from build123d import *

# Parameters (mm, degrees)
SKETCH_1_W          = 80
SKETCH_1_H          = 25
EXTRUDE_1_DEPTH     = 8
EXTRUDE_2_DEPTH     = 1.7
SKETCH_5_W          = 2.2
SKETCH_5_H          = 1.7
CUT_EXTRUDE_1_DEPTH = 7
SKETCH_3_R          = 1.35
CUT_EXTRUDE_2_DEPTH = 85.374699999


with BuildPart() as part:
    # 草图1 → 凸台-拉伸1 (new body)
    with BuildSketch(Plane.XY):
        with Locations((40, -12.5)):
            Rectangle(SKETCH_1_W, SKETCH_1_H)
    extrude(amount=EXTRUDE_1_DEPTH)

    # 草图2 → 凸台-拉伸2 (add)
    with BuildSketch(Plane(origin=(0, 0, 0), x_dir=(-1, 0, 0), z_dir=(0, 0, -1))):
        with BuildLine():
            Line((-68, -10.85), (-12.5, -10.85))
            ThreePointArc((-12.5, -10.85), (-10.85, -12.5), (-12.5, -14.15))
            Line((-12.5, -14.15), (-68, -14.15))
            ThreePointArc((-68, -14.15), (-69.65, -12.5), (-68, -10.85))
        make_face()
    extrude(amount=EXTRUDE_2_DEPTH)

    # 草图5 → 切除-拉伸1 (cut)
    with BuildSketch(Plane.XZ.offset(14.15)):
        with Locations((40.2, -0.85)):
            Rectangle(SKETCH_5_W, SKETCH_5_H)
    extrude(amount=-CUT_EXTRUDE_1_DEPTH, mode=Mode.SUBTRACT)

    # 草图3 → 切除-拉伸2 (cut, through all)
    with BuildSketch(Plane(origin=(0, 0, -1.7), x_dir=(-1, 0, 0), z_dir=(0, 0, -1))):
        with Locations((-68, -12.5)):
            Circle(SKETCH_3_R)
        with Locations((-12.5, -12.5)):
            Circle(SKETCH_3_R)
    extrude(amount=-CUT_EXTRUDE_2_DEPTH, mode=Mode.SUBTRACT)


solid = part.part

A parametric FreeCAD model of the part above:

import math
import FreeCAD as App
import Part
import Sketcher
from FreeCAD import Vector

doc = App.newDocument("Part")
params = doc.addObject("Spreadsheet::Sheet", "Params")
for row, (alias, value) in enumerate([
    ("sketch1_width", "80 mm"),
    ("sketch1_height", "25 mm"),
    ("pad1_length", "8 mm"),
    ("sketch2_radius", "1.65 mm"),
    ("sketch2_width", "55.5 mm"),
    ("pad2_length", "1.7 mm"),
    ("sketch3_width", "2.2 mm"),
    ("sketch3_height", "1.7 mm"),
    ("pocket1_length", "7 mm"),
    ("sketch4_diameter", "2.7 mm"),
], start=1):
    params.set(f"A{row}", alias)
    params.set(f"B{row}", "=" + value)
    params.setAlias(f"B{row}", alias)

body = doc.addObject("PartDesign::Body", "Body")

# Sketch on XY plane
sketch1 = body.newObject("Sketcher::SketchObject", "Sketch")
sketch1.AttachmentSupport = (doc.getObject("XY_Plane"), [""])
sketch1.MapMode = "FlatFace"
sketch1.addGeometry(Part.LineSegment(Vector(0, 0, 0), Vector(0, -25, 0)), False)
sketch1.addGeometry(Part.LineSegment(Vector(0, -25, 0), Vector(80, -25, 0)), False)
sketch1.addGeometry(Part.LineSegment(Vector(80, -25, 0), Vector(80, 0, 0)), False)
sketch1.addGeometry(Part.LineSegment(Vector(80, 0, 0), Vector(0, 0, 0)), False)
sketch1.addConstraint(Sketcher.Constraint("Coincident", 0, 2, 1, 1))
sketch1.addConstraint(Sketcher.Constraint("Coincident", 1, 2, 2, 1))
sketch1.addConstraint(Sketcher.Constraint("Coincident", 2, 2, 3, 1))
sketch1.addConstraint(Sketcher.Constraint("Coincident", 3, 2, 0, 1))
sketch1.addConstraint(Sketcher.Constraint("Vertical", 0))
sketch1.addConstraint(Sketcher.Constraint("Horizontal", 1))
sketch1.addConstraint(Sketcher.Constraint("Vertical", 2))
sketch1.addConstraint(Sketcher.Constraint("Horizontal", 3))
sketch1.addConstraint(Sketcher.Constraint("Coincident", 3, 2, -1, 1))
sketch1.addConstraint(Sketcher.Constraint("DistanceX", 1, 1, 1, 2, 80.0))
sketch1.addConstraint(Sketcher.Constraint("DistanceY", 0, 2, 0, 1, 25.0))
sketch1.setExpression("Constraints[9]", "Params.sketch1_width")
sketch1.setExpression("Constraints[10]", "Params.sketch1_height")
pad1 = body.newObject("PartDesign::Pad", "Pad")
pad1.Profile = sketch1
pad1.setExpression("Length", "Params.pad1_length")

# Sketch on XY plane
sketch2 = body.newObject("Sketcher::SketchObject", "Sketch001")
sketch2.AttachmentSupport = (doc.getObject("XY_Plane"), [""])
sketch2.MapMode = "FlatFace"
sketch2.addGeometry(Part.LineSegment(Vector(12.5, -10.8, 0), Vector(68, -10.8, 0)), False)
sketch2.addGeometry(Part.ArcOfCircle(Part.Circle(Vector(68, -12.5, 0), Vector(0, 0, 1), 1.6), math.radians(-90), math.radians(90)), False)
sketch2.addGeometry(Part.LineSegment(Vector(68, -14.2, 0), Vector(12.5, -14.2, 0)), False)
sketch2.addGeometry(Part.ArcOfCircle(Part.Circle(Vector(12.5, -12.5, 0), Vector(0, 0, 1), 1.6), math.radians(90), math.radians(270)), False)
sketch2.addConstraint(Sketcher.Constraint("Tangent", 0, 2, 1, 2))
sketch2.addConstraint(Sketcher.Constraint("Tangent", 1, 1, 2, 1))
sketch2.addConstraint(Sketcher.Constraint("Tangent", 2, 2, 3, 2))
sketch2.addConstraint(Sketcher.Constraint("Tangent", 3, 1, 0, 1))
sketch2.addConstraint(Sketcher.Constraint("Horizontal", 0))
sketch2.addConstraint(Sketcher.Constraint("Horizontal", 2))
sketch2.addConstraint(Sketcher.Constraint("Radius", 1, 1.65))
sketch2.addConstraint(Sketcher.Constraint("DistanceX", 0, 1, 0, 2, 55.5))
sketch2.addConstraint(Sketcher.Constraint("DistanceX", -1, 1, 1, 3, 68.0))
sketch2.addConstraint(Sketcher.Constraint("DistanceY", 1, 3, -1, 1, 12.5))
sketch2.setExpression("Constraints[6]", "Params.sketch2_radius")
sketch2.setExpression("Constraints[7]", "Params.sketch2_width")
pad2 = body.newObject("PartDesign::Pad", "Pad001")
pad2.Profile = sketch2
pad2.setExpression("Length", "Params.pad2_length")
pad2.Reversed = True

# Sketch on XZ plane
sketch3 = body.newObject("Sketcher::SketchObject", "Sketch002")
sketch3.AttachmentSupport = (doc.getObject("XZ_Plane"), [""])
sketch3.MapMode = "FlatFace"
sketch3.AttachmentOffset = App.Placement(Vector(0, 0, 14.15), App.Rotation())
sketch3.addGeometry(Part.LineSegment(Vector(39.1, 0, 0), Vector(39.1, -1.7, 0)), False)
sketch3.addGeometry(Part.LineSegment(Vector(39.1, -1.7, 0), Vector(41.3, -1.7, 0)), False)
sketch3.addGeometry(Part.LineSegment(Vector(41.3, -1.7, 0), Vector(41.3, 0, 0)), False)
sketch3.addGeometry(Part.LineSegment(Vector(41.3, 0, 0), Vector(39.1, 0, 0)), False)
sketch3.addConstraint(Sketcher.Constraint("Coincident", 0, 2, 1, 1))
sketch3.addConstraint(Sketcher.Constraint("Coincident", 1, 2, 2, 1))
sketch3.addConstraint(Sketcher.Constraint("Coincident", 2, 2, 3, 1))
sketch3.addConstraint(Sketcher.Constraint("Coincident", 3, 2, 0, 1))
sketch3.addConstraint(Sketcher.Constraint("Vertical", 0))
sketch3.addConstraint(Sketcher.Constraint("Horizontal", 1))
sketch3.addConstraint(Sketcher.Constraint("Vertical", 2))
sketch3.addConstraint(Sketcher.Constraint("Horizontal", 3))
sketch3.addConstraint(Sketcher.Constraint("PointOnObject", 2, 2, -1))
sketch3.addConstraint(Sketcher.Constraint("DistanceX", 1, 1, 1, 2, 2.2))
sketch3.addConstraint(Sketcher.Constraint("DistanceY", 0, 2, 0, 1, 1.7))
sketch3.addConstraint(Sketcher.Constraint("DistanceX", -1, 1, 0, 2, 39.1))
sketch3.setExpression("Constraints[9]", "Params.sketch3_width")
sketch3.setExpression("Constraints[10]", "Params.sketch3_height")
pocket1 = body.newObject("PartDesign::Pocket", "Pocket")
pocket1.Profile = sketch3
pocket1.setExpression("Length", "Params.pocket1_length")

# Sketch on XY plane
sketch4 = body.newObject("Sketcher::SketchObject", "Sketch003")
sketch4.AttachmentSupport = (doc.getObject("XY_Plane"), [""])
sketch4.MapMode = "FlatFace"
sketch4.AttachmentOffset = App.Placement(Vector(0, 0, -1.7), App.Rotation())
sketch4.addGeometry(Part.Circle(Vector(68, -12.5, 0), Vector(0, 0, 1), 1.4), False)
sketch4.addGeometry(Part.Circle(Vector(12.5, -12.5, 0), Vector(0, 0, 1), 1.4), False)
sketch4.addConstraint(Sketcher.Constraint("Equal", 0, 1))
sketch4.addConstraint(Sketcher.Constraint("Horizontal", 0, 3, 1, 3))
sketch4.addConstraint(Sketcher.Constraint("Diameter", 0, 2.7))
sketch4.addConstraint(Sketcher.Constraint("DistanceX", -1, 1, 0, 3, 68.0))
sketch4.addConstraint(Sketcher.Constraint("DistanceY", 0, 3, -1, 1, 12.5))
sketch4.addConstraint(Sketcher.Constraint("DistanceX", -1, 1, 1, 3, 12.5))
sketch4.setExpression("Constraints[2]", "Params.sketch4_diameter")
pocket2 = body.newObject("PartDesign::Pocket", "Pocket001")
pocket2.Profile = sketch4
pocket2.Type = "ThroughAll"
pocket2.Reversed = True

doc.recompute()
